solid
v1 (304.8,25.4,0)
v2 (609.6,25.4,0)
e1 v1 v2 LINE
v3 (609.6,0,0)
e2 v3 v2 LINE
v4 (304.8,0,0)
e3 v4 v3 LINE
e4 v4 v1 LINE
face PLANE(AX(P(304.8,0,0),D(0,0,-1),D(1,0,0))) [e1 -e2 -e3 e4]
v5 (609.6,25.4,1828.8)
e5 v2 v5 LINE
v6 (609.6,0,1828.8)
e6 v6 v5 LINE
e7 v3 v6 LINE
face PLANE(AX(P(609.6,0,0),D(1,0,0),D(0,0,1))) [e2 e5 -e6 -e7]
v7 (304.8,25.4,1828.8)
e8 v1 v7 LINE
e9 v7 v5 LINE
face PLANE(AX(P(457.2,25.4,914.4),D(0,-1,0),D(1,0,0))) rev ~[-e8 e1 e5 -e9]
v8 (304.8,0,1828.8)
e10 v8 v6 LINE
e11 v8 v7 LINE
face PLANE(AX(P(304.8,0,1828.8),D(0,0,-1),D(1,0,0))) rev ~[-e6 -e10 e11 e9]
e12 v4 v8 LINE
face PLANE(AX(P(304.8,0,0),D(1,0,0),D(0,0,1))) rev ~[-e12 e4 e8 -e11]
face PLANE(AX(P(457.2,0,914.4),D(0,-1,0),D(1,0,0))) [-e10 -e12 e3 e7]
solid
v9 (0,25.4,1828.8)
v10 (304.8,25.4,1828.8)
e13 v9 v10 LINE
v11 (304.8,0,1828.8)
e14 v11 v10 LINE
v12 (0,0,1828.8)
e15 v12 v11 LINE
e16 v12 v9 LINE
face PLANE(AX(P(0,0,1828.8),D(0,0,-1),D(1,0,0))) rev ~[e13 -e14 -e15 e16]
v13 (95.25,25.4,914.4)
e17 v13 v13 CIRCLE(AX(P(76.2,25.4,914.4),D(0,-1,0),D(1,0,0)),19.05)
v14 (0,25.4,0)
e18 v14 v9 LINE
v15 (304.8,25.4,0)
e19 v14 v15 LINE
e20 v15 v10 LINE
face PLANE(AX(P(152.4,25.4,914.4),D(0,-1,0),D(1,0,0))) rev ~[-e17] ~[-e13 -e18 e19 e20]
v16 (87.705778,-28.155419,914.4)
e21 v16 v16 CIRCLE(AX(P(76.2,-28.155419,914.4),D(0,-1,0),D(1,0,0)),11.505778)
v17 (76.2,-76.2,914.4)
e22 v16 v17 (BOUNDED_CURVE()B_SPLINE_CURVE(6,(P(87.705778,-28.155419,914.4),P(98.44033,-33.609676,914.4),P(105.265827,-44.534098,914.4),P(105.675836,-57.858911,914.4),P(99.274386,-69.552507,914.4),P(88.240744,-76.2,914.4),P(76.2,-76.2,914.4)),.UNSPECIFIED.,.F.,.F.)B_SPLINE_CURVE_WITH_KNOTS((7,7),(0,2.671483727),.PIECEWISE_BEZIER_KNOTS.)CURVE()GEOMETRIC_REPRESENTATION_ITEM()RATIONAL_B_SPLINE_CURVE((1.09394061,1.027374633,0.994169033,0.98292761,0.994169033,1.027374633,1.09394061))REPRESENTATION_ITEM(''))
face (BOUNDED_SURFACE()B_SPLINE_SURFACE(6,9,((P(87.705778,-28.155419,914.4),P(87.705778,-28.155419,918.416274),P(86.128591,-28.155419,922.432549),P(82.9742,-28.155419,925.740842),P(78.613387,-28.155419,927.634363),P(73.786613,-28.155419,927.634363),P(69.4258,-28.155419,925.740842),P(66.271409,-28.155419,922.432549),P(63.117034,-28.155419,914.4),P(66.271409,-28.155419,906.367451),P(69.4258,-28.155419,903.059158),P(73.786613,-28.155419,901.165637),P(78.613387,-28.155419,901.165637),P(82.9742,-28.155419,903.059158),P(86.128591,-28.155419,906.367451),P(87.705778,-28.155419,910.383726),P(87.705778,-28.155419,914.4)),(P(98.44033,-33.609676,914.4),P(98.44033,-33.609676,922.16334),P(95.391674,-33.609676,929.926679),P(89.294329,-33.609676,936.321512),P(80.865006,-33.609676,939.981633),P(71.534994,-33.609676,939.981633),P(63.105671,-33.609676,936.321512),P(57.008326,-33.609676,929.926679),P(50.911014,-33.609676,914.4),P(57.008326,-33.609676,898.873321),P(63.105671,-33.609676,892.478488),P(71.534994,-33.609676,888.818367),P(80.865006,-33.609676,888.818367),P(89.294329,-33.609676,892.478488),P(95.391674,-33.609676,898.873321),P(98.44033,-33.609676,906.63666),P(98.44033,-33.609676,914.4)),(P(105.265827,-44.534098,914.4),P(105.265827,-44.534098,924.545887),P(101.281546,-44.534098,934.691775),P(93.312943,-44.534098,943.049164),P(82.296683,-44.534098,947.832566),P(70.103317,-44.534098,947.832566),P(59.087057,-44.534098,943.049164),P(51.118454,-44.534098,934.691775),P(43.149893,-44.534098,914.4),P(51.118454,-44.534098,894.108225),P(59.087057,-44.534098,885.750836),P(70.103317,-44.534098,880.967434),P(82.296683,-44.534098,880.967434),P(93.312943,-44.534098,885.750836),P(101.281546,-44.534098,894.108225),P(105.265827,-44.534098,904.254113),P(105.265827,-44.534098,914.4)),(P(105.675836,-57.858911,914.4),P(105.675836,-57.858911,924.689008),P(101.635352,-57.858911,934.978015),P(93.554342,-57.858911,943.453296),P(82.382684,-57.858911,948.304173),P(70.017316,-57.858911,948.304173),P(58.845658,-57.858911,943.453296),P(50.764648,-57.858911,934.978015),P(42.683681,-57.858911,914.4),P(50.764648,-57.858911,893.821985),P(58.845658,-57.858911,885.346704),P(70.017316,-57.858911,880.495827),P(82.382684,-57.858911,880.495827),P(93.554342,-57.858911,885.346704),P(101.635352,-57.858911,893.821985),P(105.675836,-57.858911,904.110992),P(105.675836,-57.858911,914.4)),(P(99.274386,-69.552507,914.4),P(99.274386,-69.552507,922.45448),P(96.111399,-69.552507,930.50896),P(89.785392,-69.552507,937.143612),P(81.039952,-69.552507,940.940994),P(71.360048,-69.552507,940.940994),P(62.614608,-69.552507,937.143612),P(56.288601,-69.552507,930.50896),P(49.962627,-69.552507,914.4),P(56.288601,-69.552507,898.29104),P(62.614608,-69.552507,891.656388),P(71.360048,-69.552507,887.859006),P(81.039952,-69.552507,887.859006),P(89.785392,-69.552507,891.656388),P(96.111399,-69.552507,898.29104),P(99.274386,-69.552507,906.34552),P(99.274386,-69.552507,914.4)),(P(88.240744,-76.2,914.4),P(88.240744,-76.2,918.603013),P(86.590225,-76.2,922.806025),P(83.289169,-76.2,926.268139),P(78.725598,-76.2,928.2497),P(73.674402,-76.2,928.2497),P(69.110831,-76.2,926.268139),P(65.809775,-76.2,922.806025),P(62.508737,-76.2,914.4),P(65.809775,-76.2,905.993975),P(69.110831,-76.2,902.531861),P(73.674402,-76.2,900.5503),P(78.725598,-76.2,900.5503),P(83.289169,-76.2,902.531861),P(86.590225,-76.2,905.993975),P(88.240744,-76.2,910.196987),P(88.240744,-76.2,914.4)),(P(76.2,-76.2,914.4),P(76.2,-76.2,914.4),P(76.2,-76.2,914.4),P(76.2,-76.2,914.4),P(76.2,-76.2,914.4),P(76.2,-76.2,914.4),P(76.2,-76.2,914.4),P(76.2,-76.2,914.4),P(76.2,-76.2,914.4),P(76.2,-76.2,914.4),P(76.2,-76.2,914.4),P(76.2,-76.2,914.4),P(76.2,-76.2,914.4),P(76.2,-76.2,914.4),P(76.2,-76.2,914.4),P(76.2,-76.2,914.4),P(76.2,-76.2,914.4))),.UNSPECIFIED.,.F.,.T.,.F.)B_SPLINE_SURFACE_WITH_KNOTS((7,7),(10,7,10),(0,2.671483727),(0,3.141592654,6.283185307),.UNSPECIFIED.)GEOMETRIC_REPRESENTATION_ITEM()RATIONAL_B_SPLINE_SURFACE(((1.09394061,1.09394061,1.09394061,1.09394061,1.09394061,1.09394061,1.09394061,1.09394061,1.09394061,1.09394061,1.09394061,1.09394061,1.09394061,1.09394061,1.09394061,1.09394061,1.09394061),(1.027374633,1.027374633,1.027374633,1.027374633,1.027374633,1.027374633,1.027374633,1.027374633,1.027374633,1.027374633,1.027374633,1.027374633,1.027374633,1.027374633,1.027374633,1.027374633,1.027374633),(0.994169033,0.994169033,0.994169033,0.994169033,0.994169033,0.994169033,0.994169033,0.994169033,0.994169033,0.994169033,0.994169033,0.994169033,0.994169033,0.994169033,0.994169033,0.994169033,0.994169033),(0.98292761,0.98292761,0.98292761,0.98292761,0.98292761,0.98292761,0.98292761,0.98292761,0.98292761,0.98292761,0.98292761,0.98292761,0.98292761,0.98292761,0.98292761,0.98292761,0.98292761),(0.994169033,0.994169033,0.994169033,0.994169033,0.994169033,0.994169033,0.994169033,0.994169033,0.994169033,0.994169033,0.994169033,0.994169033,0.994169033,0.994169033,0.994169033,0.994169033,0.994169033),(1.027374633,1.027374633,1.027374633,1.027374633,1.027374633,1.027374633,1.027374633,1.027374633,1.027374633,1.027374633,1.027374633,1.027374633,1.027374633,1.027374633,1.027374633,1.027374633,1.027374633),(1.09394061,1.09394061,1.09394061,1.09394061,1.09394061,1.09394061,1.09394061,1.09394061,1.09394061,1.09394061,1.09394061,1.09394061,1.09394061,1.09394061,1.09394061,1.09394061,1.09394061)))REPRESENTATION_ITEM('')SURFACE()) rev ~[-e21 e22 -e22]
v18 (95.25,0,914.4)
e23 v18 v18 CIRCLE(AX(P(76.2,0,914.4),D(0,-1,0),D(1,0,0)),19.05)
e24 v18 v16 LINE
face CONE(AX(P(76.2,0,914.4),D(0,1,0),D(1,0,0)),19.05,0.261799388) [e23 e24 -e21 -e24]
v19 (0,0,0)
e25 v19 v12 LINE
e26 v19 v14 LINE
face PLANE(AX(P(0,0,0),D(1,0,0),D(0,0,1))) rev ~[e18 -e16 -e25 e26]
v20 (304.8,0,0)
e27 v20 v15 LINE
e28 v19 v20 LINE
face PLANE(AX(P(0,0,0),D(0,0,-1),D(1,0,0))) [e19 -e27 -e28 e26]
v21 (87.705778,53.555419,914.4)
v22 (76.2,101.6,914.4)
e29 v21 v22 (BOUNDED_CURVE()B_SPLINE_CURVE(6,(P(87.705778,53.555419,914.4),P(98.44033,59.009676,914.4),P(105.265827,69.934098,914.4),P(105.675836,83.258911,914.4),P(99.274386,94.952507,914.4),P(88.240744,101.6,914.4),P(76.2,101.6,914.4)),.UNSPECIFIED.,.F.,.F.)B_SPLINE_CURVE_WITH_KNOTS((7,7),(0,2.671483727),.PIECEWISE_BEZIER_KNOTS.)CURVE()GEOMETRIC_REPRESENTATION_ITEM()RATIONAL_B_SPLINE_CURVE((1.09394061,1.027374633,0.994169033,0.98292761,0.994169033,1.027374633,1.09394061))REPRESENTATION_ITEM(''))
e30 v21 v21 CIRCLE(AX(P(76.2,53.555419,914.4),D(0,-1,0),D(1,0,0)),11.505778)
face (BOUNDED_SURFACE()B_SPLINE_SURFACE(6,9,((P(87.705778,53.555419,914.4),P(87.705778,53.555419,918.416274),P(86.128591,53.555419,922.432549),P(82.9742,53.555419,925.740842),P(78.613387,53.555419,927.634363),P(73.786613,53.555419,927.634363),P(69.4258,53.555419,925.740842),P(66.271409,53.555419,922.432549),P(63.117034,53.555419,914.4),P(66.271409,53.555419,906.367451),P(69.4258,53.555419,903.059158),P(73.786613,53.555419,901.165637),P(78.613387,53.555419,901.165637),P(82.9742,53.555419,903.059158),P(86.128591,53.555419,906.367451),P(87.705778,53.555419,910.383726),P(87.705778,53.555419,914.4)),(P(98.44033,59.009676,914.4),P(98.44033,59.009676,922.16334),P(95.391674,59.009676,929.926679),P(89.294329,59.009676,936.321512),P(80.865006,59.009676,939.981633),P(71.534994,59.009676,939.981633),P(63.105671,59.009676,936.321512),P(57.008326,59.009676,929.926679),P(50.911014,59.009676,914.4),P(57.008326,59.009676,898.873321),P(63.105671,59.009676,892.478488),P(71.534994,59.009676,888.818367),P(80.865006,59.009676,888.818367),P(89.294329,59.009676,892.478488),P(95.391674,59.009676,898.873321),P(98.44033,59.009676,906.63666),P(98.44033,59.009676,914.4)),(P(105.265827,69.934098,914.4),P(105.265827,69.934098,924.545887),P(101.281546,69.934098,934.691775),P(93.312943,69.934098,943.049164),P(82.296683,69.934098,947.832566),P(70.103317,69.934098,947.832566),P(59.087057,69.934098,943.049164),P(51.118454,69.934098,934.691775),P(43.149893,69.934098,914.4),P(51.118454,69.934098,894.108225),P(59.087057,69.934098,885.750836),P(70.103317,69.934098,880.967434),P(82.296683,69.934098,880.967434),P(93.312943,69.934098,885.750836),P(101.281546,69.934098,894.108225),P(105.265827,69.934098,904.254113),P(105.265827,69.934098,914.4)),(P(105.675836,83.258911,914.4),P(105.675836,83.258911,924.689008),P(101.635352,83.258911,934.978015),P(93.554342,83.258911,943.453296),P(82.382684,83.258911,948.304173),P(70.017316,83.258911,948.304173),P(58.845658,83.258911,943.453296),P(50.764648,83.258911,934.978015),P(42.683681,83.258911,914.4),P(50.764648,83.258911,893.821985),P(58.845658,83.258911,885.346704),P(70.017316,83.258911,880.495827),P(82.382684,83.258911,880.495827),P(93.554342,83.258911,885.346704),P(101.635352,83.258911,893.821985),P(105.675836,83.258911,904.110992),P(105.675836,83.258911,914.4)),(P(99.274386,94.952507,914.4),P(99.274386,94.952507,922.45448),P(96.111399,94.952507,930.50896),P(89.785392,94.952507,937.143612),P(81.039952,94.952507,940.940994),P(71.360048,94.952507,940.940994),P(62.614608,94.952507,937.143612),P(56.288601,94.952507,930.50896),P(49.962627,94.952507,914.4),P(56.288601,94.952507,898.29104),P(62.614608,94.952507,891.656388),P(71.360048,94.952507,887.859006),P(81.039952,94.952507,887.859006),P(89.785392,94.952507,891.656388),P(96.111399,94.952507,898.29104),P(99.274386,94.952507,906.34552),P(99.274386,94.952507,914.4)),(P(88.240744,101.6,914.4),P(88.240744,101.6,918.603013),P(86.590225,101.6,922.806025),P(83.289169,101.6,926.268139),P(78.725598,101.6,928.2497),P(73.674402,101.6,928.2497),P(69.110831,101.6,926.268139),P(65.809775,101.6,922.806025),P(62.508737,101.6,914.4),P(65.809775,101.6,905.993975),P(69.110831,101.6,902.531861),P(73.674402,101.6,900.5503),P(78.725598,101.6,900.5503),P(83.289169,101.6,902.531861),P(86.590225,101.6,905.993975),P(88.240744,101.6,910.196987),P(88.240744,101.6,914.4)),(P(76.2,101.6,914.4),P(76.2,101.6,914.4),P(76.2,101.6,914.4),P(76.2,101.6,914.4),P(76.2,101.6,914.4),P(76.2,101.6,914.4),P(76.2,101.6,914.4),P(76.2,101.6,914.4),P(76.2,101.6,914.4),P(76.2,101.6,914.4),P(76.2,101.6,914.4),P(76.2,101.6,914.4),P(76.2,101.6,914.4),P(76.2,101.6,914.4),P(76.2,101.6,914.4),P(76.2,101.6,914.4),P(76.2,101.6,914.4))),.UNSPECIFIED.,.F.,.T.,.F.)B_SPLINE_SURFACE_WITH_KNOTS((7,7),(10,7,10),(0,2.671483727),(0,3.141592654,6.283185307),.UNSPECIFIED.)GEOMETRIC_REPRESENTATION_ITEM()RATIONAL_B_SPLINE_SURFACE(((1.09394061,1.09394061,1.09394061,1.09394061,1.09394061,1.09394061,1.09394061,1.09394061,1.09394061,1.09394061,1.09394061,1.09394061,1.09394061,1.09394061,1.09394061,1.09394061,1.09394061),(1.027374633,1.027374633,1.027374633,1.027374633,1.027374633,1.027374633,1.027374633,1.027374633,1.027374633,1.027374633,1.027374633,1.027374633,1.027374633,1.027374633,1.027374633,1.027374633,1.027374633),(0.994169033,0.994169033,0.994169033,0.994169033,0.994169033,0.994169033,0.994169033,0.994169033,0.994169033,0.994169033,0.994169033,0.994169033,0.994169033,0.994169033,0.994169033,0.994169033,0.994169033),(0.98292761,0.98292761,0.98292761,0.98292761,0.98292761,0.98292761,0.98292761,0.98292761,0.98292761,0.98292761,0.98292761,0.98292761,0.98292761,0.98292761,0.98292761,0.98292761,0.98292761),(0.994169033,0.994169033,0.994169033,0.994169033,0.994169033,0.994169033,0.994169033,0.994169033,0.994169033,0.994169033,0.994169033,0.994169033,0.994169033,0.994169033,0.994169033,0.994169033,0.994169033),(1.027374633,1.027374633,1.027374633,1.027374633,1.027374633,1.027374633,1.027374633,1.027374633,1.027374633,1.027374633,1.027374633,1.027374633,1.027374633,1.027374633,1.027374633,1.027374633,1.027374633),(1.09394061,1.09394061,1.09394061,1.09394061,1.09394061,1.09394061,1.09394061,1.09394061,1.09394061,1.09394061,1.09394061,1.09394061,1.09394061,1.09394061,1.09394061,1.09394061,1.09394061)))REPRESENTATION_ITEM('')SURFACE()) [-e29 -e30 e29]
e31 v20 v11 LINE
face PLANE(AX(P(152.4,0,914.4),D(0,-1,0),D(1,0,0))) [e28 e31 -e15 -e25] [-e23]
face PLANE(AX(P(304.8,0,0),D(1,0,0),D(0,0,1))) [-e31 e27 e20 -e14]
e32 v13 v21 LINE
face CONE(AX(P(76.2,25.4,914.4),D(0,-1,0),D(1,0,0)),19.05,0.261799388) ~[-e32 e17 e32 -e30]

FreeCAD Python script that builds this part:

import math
import FreeCAD as App
import Part
import Sketcher
from FreeCAD import Vector
Q = App.Units.Quantity


def add_polygon(sketch, points):
    """Adds a closed chain of lines whose ends are joined by coincident constraints."""
    first, n = sketch.GeometryCount, len(points)
    for a, b in zip(points, points[1:] + points[:1]):
        sketch.addGeometry(Part.LineSegment(App.Vector(*a, 0), App.Vector(*b, 0)), False)
    for i in range(n):
        sketch.addConstraint(Sketcher.Constraint("Coincident", first + i, 2, first + (i + 1) % n, 1))

doc = App.newDocument("Part")
body = doc.addObject("PartDesign::Body", "Body")

# Sketch on XZ plane
sketch1 = body.newObject("Sketcher::SketchObject", "Sketch")
sketch1.AttachmentSupport = (doc.getObject("XZ_Plane"), [""])
sketch1.MapMode = "FlatFace"
add_polygon(sketch1, [(0, 1829), (0, 0), (305, 0), (305, 1829)])  # lines 0-3
sketch1.addConstraint([
    Sketcher.Constraint("Vertical", 0),
    Sketcher.Constraint("Horizontal", 1),
    Sketcher.Constraint("Vertical", 2),
    Sketcher.Constraint("Horizontal", 3),
    Sketcher.Constraint("Coincident", 0, 2, -1, 1),
    Sketcher.Constraint("DistanceX", 1, 1, 1, 2, Q("12 in")),
    Sketcher.Constraint("DistanceY", 0, 2, 0, 1, Q("72 in")),
])
pad1 = body.newObject("PartDesign::Pad", "Pad")
pad1.Profile = sketch1
pad1.Length = Q("1 in")
pad1.Reversed = True
body2 = doc.addObject("PartDesign::Body", "Body001")

# Sketch on XY plane
sketch2 = body2.newObject("Sketcher::SketchObject", "Sketch001")
sketch2.AttachmentSupport = (doc.getObject("XY_Plane001"), [""])
sketch2.MapMode = "FlatFace"
sketch2.AttachmentOffset = App.Placement(Vector(0, 0, 36 * 25.4), App.Rotation())
sketch2.addGeometry([
    Part.LineSegment(Vector(57, 0, 0), Vector(65, -28, 0)),
    Part.ArcOfCircle(Part.Circle(Vector(76, -51, 0), Vector(0, 0, 1), 25), math.radians(117), math.radians(270)),
    Part.LineSegment(Vector(76, -76, 0), Vector(76, 0, 0)),
    Part.LineSegment(Vector(76, 0, 0), Vector(57, 0, 0)),
], False)
sketch2.addConstraint([
    Sketcher.Constraint("Coincident", 0, 2, 1, 1),
    Sketcher.Constraint("Coincident", 1, 2, 2, 1),
    Sketcher.Constraint("Coincident", 2, 2, 3, 1),
    Sketcher.Constraint("Coincident", 3, 2, 0, 1),
    Sketcher.Constraint("Vertical", 2),
    Sketcher.Constraint("Horizontal", 3),
    Sketcher.Constraint("PointOnObject", 2, 2, -1),
    Sketcher.Constraint("Radius", 1, Q("1 in")),
    Sketcher.Constraint("DistanceY", 2, 1, 2, 2, Q("3 in")),
    Sketcher.Constraint("DistanceX", -1, 1, 1, 3, Q("3 in")),
    Sketcher.Constraint("DistanceX", -1, 1, 1, 2, Q("3 in")),
    Sketcher.Constraint("Angle", 0, Q("-75 deg")),
    Sketcher.Constraint("DistanceX", 3, 2, 3, 1, Q("0.75 in")),
])

# Sketch on XZ plane
sketch3 = body2.newObject("Sketcher::SketchObject", "Sketch002")
sketch3.AttachmentSupport = (doc.getObject("XZ_Plane001"), [""])
sketch3.MapMode = "FlatFace"
sketch3.addGeometry(Part.Circle(Vector(76, 914, 0), Vector(0, 0, 1), 35), False)
sketch3.addConstraint([
    Sketcher.Constraint("DistanceX", -1, 1, 0, 3, Q("3 in")),
    Sketcher.Constraint("DistanceY", -1, 1, 0, 3, Q("36 in")),
    Sketcher.Constraint("Diameter", 0, Q("69.390469 mm")),
])
doc.recompute()

additivepipe = body2.newObject("PartDesign::AdditivePipe", "AdditivePipe")
additivepipe.Profile = sketch2
additivepipe.Spine = (sketch3, ["Edge1"])
doc.recompute()

body3 = doc.addObject("PartDesign::Body", "Body002")
body3.BaseFeature = body2
boolean = body.newObject("PartDesign::Boolean", "Boolean")
boolean.Type = "Fuse"
boolean.addObjects([body3])
doc.recompute()

mirroring = doc.addObject("Part::Mirroring", "Mirroring")
mirroring.Source = body2
mirroring.Base = Vector(0, 12.7, 0)
mirroring.Normal = Vector(0, -1, 0)
body4 = doc.addObject("PartDesign::Body", "Body003")
body4.BaseFeature = mirroring
boolean2 = body.newObject("PartDesign::Boolean", "Boolean001")
boolean2.Type = "Fuse"
boolean2.addObjects([body4])
doc.recompute()
body5 = doc.addObject("PartDesign::Body", "Body004")

# Sketch on XZ plane
sketch4 = body5.newObject("Sketcher::SketchObject", "Sketch003")
sketch4.AttachmentSupport = (doc.getObject("XZ_Plane004"), [""])
sketch4.MapMode = "FlatFace"
add_polygon(sketch4, [(305, 1829), (305, 0), (610, 0), (610, 1829)])  # lines 0-3
sketch4.addConstraint([
    Sketcher.Constraint("Vertical", 0),
    Sketcher.Constraint("Horizontal", 1),
    Sketcher.Constraint("Vertical", 2),
    Sketcher.Constraint("Horizontal", 3),
    Sketcher.Constraint("PointOnObject", 0, 2, -1),
    Sketcher.Constraint("DistanceX", 1, 1, 1, 2, Q("12 in")),
    Sketcher.Constraint("DistanceY", 0, 2, 0, 1, Q("72 in")),
    Sketcher.Constraint("DistanceX", -1, 1, 0, 2, Q("12 in")),
])
pad2 = body5.newObject("PartDesign::Pad", "Pad001")
pad2.Profile = sketch4
pad2.Length = Q("1 in")
pad2.Reversed = True
mirroring.Visibility = False

doc.recompute()
